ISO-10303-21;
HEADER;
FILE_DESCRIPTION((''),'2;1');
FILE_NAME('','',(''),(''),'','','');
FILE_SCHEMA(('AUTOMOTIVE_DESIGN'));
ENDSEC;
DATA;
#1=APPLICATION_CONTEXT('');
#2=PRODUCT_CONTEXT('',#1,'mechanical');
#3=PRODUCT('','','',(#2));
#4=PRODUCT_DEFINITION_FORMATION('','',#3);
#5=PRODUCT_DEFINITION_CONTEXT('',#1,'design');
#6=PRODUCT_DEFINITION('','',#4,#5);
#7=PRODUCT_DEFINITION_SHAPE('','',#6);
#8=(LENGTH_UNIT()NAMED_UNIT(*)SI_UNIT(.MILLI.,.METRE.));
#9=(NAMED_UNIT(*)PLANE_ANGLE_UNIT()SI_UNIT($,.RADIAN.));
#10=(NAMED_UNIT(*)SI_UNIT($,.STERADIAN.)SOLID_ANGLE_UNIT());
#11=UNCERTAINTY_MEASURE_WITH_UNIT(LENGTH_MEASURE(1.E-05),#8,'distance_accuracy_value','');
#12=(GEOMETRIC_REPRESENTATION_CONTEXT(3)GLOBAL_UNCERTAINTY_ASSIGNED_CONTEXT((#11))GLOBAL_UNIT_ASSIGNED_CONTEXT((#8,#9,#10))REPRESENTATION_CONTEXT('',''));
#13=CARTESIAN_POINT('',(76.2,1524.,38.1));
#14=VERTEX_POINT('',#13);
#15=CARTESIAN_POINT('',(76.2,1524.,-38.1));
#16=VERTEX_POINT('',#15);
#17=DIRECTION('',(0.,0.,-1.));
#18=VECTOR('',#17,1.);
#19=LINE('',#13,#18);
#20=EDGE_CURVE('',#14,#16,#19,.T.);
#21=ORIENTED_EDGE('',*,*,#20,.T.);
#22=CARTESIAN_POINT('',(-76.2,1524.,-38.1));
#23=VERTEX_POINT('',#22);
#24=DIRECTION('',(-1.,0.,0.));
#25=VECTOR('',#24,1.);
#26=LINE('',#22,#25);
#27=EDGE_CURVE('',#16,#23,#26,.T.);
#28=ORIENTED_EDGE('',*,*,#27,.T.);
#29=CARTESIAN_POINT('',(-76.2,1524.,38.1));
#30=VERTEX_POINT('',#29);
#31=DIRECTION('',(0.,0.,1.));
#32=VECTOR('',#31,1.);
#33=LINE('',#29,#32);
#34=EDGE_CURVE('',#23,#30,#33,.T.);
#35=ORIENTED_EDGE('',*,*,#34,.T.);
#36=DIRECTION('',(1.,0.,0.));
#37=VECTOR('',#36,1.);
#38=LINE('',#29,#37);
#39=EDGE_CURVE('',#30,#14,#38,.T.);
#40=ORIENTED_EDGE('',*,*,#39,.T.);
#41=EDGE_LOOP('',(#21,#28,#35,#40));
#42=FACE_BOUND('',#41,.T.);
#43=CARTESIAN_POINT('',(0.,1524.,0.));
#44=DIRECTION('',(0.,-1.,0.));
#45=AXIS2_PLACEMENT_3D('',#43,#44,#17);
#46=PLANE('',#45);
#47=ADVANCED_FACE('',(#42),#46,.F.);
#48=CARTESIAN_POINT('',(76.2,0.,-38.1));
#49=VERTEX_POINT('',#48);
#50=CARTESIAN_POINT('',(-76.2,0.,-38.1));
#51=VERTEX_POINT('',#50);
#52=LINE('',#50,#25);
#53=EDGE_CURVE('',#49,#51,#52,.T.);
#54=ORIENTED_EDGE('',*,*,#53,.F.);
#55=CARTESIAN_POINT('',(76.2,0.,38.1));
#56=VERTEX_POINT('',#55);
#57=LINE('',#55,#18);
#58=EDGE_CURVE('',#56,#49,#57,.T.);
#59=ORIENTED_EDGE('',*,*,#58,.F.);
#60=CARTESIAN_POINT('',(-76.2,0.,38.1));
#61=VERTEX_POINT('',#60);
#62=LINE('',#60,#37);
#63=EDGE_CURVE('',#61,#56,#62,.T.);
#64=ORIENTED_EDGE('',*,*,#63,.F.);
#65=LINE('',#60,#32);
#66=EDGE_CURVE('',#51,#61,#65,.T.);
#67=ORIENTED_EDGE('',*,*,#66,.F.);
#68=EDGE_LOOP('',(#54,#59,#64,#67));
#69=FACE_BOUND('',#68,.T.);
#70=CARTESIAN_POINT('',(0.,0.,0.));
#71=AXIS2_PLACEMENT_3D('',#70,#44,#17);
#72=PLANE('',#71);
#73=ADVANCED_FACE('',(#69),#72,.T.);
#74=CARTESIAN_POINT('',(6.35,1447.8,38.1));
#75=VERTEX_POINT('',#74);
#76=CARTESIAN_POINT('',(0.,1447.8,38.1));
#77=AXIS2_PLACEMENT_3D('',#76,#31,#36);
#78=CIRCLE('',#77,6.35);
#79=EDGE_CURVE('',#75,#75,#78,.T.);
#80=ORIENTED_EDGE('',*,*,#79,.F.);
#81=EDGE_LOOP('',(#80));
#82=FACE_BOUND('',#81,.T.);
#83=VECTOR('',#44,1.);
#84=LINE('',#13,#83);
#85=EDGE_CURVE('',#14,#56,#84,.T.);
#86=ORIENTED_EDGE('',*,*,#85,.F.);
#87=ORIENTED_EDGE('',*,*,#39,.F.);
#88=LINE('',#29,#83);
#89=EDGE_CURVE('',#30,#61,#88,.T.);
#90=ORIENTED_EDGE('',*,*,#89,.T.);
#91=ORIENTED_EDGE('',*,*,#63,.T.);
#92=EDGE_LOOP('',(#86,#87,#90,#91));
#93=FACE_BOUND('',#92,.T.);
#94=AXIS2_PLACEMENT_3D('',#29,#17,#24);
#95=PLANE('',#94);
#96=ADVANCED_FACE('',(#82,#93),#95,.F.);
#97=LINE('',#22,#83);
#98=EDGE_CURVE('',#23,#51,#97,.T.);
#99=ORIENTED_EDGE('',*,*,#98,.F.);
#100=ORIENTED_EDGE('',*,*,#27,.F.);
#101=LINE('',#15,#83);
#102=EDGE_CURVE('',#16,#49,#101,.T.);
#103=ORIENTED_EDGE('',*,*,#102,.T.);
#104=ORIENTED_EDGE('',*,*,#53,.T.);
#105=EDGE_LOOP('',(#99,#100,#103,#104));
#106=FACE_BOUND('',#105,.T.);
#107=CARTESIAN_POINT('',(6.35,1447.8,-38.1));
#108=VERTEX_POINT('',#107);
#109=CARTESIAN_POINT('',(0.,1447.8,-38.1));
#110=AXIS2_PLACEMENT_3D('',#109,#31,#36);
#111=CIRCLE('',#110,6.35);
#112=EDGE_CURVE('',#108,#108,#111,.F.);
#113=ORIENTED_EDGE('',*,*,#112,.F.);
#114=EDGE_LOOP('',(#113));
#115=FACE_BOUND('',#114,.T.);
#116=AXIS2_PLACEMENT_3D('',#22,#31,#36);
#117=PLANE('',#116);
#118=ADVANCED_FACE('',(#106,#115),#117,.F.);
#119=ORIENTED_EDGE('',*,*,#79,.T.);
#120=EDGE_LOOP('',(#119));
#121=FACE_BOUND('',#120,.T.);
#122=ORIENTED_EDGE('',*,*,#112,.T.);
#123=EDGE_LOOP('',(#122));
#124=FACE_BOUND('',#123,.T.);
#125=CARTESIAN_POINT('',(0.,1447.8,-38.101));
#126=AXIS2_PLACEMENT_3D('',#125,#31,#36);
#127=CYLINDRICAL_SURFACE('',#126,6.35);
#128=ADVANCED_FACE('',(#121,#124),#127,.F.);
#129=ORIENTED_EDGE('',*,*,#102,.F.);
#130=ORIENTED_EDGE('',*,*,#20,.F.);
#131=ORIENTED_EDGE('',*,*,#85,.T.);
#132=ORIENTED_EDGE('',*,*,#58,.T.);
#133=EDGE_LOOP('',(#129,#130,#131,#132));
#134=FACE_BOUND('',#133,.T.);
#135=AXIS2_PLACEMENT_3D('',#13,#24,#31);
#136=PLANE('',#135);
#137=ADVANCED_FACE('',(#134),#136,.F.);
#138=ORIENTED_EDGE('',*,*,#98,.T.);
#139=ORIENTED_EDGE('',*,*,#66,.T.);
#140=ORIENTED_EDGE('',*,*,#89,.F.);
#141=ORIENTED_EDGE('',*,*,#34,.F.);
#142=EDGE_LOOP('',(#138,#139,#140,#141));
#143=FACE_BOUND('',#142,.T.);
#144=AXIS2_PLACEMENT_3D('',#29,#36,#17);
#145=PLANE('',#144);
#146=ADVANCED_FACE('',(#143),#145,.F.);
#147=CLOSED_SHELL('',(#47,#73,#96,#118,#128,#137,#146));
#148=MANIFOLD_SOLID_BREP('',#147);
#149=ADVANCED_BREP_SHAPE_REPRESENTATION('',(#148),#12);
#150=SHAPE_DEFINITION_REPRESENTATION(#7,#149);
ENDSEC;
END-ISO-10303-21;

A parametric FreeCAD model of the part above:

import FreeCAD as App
import Part
import Sketcher
from FreeCAD import Vector
Q = App.Units.Quantity


def add_polygon(sketch, points):
    """Adds a closed chain of lines whose ends are joined by coincident constraints."""
    first, n = sketch.GeometryCount, len(points)
    for a, b in zip(points, points[1:] + points[:1]):
        sketch.addGeometry(Part.LineSegment(App.Vector(*a, 0), App.Vector(*b, 0)), False)
    for i in range(n):
        sketch.addConstraint(Sketcher.Constraint("Coincident", first + i, 2, first + (i + 1) % n, 1))

doc = App.newDocument("Part")
body = doc.addObject("PartDesign::Body", "Body")

sketch1 = body.newObject("Sketcher::SketchObject", "Sketch")
sketch1.AttachmentSupport = (doc.getObject("XZ_Plane"), [""])
sketch1.MapMode = "FlatFace"
add_polygon(sketch1, [(-76, -38), (-76, 38), (76, 38), (76, -38)])
sketch1.addConstraint([
    Sketcher.Constraint("Vertical", 0),
    Sketcher.Constraint("Horizontal", 1),
    Sketcher.Constraint("Vertical", 2),
    Sketcher.Constraint("Horizontal", 3),
    Sketcher.Constraint("Symmetric", 0, 2, 2, 2, -1, 1),
    Sketcher.Constraint("DistanceX", 1, 1, 1, 2, Q("6 in")),
    Sketcher.Constraint("DistanceY", 0, 1, 0, 2, Q("3 in")),
])
pad1 = body.newObject("PartDesign::Pad", "Pad")
pad1.Profile = sketch1
pad1.Length = Q("60 in")
pad1.Reversed = True

sketch2 = body.newObject("Sketcher::SketchObject", "Sketch001")
sketch2.AttachmentSupport = (doc.getObject("XY_Plane"), [""])
sketch2.MapMode = "FlatFace"
sketch2.AttachmentOffset = App.Placement(Vector(0, 0, 1.5 * 25.4), App.Rotation())
sketch2.addGeometry(Part.Circle(Vector(0, 1448, 0), Vector(0, 0, 1), 6), False)
sketch2.addConstraint([
    Sketcher.Constraint("PointOnObject", 0, 3, -2),
    Sketcher.Constraint("Diameter", 0, Q("0.5 in")),
    Sketcher.Constraint("DistanceY", -1, 1, 0, 3, Q("57 in")),
])
pocket1 = body.newObject("PartDesign::Pocket", "Pocket")
pocket1.Profile = sketch2
pocket1.Type = "UpToFirst"

doc.recompute()
